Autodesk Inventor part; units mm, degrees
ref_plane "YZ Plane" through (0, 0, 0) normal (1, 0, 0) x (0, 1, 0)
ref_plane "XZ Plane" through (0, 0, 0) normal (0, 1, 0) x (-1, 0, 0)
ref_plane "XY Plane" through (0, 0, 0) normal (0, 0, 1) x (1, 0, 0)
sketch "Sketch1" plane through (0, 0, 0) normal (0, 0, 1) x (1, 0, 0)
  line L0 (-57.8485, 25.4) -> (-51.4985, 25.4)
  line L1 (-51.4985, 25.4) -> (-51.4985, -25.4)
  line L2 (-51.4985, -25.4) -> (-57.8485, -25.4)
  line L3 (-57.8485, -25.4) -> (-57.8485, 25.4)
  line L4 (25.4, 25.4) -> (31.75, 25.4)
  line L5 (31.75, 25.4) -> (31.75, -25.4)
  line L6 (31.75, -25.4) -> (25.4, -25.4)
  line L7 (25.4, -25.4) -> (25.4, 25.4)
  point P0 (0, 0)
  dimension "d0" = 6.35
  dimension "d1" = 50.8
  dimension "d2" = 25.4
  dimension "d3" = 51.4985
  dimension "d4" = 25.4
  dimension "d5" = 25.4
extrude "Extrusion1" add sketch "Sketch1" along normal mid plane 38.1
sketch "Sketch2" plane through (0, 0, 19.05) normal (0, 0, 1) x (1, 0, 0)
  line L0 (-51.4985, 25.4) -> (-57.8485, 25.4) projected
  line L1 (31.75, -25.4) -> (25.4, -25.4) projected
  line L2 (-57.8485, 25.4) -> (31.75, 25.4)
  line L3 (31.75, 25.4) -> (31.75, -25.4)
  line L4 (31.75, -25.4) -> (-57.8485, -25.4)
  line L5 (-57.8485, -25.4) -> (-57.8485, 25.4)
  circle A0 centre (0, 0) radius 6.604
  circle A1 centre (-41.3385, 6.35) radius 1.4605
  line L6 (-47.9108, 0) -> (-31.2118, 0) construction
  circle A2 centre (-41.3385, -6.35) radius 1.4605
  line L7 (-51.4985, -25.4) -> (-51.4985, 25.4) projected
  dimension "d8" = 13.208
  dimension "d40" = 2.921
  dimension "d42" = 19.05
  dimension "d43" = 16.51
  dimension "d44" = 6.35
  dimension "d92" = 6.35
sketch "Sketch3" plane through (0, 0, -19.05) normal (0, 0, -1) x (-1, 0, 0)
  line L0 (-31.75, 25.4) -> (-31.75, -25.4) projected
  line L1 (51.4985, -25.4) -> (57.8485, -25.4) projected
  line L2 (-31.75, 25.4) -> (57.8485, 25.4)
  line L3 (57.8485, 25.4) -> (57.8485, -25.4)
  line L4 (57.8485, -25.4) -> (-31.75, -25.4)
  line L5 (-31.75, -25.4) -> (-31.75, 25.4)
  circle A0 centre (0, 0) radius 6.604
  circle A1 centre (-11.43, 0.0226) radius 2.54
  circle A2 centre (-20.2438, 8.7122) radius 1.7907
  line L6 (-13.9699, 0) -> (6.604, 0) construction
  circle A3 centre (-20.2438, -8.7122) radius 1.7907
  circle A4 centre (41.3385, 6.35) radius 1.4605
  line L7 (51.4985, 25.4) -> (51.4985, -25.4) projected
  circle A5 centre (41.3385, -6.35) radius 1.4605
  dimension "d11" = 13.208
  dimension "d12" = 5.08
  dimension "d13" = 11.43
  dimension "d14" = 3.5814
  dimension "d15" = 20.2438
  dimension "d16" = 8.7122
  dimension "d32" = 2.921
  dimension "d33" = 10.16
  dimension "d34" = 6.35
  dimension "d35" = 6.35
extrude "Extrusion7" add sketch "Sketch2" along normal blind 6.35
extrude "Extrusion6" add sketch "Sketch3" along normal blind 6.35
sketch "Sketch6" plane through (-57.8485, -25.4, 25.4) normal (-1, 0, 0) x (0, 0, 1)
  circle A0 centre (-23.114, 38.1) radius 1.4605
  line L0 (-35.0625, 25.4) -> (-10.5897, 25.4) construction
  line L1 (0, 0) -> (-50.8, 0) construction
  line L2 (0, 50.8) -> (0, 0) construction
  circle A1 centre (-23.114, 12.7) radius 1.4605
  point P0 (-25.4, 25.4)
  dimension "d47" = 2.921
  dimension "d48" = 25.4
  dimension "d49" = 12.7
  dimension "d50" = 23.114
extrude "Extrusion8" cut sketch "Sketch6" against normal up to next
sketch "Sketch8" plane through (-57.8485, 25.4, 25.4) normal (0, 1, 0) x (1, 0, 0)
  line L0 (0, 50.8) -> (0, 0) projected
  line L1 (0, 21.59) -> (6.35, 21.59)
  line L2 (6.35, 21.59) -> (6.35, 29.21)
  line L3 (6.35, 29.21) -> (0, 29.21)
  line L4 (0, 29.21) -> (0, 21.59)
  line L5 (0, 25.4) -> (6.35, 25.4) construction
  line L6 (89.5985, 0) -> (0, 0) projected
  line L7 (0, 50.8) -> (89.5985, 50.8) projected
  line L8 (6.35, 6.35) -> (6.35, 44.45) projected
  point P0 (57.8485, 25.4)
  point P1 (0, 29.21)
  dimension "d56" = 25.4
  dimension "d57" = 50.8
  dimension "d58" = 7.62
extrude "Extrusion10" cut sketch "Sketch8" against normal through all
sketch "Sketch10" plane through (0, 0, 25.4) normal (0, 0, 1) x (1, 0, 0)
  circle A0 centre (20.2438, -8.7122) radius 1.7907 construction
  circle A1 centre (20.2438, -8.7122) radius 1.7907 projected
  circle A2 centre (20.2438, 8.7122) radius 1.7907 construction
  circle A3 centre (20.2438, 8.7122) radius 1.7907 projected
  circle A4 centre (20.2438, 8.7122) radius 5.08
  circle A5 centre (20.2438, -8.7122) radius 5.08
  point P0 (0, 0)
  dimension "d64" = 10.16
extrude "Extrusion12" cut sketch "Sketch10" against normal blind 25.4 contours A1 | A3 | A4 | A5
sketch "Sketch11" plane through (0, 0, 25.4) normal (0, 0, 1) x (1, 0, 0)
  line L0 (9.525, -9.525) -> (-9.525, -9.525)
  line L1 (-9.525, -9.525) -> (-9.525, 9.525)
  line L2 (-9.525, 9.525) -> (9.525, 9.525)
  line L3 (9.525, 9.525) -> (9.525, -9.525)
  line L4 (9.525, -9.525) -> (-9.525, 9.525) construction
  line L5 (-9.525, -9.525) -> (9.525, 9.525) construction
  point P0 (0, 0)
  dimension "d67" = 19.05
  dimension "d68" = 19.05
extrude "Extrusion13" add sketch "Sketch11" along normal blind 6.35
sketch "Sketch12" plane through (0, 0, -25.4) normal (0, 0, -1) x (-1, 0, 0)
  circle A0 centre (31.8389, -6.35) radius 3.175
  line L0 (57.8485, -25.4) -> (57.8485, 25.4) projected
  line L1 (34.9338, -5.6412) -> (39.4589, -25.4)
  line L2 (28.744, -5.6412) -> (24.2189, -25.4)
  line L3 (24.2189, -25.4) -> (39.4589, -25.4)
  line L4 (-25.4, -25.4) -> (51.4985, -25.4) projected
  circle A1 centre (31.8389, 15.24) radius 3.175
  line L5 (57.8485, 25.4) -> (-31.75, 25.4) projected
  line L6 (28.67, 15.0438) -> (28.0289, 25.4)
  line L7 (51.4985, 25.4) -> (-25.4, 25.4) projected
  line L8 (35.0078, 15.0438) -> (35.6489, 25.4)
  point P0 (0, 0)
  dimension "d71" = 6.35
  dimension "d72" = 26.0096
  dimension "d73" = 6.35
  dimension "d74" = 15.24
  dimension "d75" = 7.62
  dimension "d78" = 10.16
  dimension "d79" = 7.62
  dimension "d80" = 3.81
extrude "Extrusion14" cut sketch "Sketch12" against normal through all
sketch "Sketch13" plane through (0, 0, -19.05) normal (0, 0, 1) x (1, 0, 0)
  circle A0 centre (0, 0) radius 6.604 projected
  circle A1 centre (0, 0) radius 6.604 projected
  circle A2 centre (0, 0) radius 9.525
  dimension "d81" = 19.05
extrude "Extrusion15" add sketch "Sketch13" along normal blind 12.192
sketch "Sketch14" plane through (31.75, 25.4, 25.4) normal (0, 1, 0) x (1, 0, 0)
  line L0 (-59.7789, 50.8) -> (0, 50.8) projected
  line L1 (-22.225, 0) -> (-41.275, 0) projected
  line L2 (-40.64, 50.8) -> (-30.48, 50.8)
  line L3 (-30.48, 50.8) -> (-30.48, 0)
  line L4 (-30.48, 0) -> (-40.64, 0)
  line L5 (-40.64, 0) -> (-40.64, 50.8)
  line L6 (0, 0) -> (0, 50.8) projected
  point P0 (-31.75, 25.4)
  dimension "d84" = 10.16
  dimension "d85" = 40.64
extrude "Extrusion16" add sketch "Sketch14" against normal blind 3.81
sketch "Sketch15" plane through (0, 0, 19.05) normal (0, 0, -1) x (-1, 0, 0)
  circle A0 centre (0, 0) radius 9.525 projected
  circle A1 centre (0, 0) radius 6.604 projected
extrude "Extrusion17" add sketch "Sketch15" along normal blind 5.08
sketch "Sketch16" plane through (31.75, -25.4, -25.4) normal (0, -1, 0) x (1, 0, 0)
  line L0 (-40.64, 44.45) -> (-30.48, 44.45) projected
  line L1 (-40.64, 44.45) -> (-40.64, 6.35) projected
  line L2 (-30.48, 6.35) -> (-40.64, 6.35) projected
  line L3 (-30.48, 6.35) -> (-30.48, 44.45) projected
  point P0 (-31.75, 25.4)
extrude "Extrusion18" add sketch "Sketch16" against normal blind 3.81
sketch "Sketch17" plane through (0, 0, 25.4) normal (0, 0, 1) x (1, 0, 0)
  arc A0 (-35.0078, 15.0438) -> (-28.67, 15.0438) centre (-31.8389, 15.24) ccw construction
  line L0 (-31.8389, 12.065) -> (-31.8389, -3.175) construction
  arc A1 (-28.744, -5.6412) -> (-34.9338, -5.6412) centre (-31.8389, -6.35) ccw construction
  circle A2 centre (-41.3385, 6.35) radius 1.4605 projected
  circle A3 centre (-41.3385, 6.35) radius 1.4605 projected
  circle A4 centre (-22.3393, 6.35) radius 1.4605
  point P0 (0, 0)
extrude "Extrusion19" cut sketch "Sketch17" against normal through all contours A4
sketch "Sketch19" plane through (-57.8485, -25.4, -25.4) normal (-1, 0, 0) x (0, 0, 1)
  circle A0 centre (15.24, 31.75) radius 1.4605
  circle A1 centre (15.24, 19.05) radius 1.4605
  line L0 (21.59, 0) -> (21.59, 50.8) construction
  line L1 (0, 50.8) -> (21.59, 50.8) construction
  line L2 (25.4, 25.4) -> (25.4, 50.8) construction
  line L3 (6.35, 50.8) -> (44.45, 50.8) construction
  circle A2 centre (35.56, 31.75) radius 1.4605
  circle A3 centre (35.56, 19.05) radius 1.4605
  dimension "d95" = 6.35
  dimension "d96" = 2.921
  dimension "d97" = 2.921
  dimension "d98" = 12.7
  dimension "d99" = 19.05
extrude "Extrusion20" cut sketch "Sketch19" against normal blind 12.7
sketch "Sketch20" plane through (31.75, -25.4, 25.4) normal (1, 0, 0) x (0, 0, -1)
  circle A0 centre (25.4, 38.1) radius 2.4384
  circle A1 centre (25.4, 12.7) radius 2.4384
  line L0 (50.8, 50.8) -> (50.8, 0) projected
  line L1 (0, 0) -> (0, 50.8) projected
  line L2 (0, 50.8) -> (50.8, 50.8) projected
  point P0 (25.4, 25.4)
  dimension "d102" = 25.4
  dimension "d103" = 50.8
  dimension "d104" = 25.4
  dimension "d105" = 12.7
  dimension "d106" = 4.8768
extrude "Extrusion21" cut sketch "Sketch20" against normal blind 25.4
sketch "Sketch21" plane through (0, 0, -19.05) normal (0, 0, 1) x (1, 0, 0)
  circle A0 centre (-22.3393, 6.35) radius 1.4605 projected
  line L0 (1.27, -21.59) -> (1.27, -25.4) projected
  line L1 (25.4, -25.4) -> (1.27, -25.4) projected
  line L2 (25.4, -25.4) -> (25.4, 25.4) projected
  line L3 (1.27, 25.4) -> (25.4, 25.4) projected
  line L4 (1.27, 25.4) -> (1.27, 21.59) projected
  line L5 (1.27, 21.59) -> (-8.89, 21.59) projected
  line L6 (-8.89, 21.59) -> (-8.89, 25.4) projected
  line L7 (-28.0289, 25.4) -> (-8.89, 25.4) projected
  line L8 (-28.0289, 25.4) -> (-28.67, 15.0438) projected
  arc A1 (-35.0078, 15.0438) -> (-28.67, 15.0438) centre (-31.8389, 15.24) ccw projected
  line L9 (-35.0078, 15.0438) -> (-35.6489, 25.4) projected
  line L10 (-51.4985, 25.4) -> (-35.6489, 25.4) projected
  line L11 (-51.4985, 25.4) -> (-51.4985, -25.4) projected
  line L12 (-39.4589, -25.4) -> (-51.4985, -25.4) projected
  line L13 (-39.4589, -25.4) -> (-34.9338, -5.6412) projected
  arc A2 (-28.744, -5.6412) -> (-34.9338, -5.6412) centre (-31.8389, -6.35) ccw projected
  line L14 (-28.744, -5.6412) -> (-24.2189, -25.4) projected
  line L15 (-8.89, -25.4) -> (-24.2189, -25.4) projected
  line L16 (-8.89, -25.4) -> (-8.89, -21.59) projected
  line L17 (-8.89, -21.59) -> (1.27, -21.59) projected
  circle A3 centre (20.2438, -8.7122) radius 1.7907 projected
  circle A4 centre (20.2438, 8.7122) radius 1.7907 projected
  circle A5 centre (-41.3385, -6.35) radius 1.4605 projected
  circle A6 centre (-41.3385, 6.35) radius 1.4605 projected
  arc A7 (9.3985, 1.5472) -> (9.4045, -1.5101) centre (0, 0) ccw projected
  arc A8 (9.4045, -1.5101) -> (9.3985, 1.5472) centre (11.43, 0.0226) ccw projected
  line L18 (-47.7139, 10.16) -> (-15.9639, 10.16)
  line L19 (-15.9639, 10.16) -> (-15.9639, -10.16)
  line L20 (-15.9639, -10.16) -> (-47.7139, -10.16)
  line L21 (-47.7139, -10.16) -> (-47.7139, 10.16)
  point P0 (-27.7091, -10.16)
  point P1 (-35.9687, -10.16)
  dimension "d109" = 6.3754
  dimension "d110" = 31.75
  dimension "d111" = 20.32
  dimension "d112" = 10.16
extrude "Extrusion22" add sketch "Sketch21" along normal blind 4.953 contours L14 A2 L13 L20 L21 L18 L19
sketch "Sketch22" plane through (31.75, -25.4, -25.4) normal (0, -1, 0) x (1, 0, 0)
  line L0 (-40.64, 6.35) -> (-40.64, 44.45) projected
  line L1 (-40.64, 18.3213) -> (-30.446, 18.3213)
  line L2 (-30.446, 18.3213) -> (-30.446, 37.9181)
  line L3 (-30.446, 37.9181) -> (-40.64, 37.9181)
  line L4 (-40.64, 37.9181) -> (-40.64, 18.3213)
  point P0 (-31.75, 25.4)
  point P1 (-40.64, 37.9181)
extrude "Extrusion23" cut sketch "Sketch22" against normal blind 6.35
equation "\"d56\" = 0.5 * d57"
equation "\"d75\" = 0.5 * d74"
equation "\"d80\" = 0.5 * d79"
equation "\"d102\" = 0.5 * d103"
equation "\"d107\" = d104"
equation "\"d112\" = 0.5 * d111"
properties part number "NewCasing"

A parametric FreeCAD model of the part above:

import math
import FreeCAD as App
import Part
import Sketcher
Q = App.Units.Quantity

doc = App.newDocument("Part")
body = doc.addObject("PartDesign::Body", "Body")
body.AllowCompound = True

# Sketch on XY plane
sketch1 = body.newObject("Sketcher::SketchObject", "Sketch")
sketch1.AttachmentSupport = (doc.getObject("XY_Plane"), [""])
sketch1.MapMode = "FlatFace"
sketch1.addGeometry(Part.LineSegment(App.Vector(-51, 25, 0), App.Vector(-58, 25, 0)), False)
sketch1.addGeometry(Part.LineSegment(App.Vector(-58, 25, 0), App.Vector(-58, -25, 0)), False)
sketch1.addGeometry(Part.LineSegment(App.Vector(-58, -25, 0), App.Vector(-51, -25, 0)), False)
sketch1.addGeometry(Part.LineSegment(App.Vector(-51, -25, 0), App.Vector(-51, 25, 0)), False)
sketch1.addGeometry(Part.LineSegment(App.Vector(32, 25, 0), App.Vector(25, 25, 0)), False)
sketch1.addGeometry(Part.LineSegment(App.Vector(25, 25, 0), App.Vector(25, -25, 0)), False)
sketch1.addGeometry(Part.LineSegment(App.Vector(25, -25, 0), App.Vector(32, -25, 0)), False)
sketch1.addGeometry(Part.LineSegment(App.Vector(32, -25, 0), App.Vector(32, 25, 0)), False)
sketch1.addConstraint(Sketcher.Constraint("Coincident", 0, 2, 1, 1))
sketch1.addConstraint(Sketcher.Constraint("Coincident", 1, 2, 2, 1))
sketch1.addConstraint(Sketcher.Constraint("Coincident", 2, 2, 3, 1))
sketch1.addConstraint(Sketcher.Constraint("Coincident", 3, 2, 0, 1))
sketch1.addConstraint(Sketcher.Constraint("Coincident", 4, 2, 5, 1))
sketch1.addConstraint(Sketcher.Constraint("Coincident", 5, 2, 6, 1))
sketch1.addConstraint(Sketcher.Constraint("Coincident", 6, 2, 7, 1))
sketch1.addConstraint(Sketcher.Constraint("Coincident", 7, 2, 4, 1))
sketch1.addConstraint(Sketcher.Constraint("Horizontal", 0))
sketch1.addConstraint(Sketcher.Constraint("Vertical", 1))
sketch1.addConstraint(Sketcher.Constraint("Horizontal", 2))
sketch1.addConstraint(Sketcher.Constraint("Vertical", 3))
sketch1.addConstraint(Sketcher.Constraint("Horizontal", 4))
sketch1.addConstraint(Sketcher.Constraint("Vertical", 5))
sketch1.addConstraint(Sketcher.Constraint("Horizontal", 6))
sketch1.addConstraint(Sketcher.Constraint("Vertical", 7))
sketch1.addConstraint(Sketcher.Constraint("Horizontal", 3, 2, 4, 2))
sketch1.addConstraint(Sketcher.Constraint("Horizontal", 2, 2, 5, 2))
sketch1.addConstraint(Sketcher.Constraint("Equal", 2, 4))
sketch1.addConstraint(Sketcher.Constraint("DistanceY", 1, 2, 1, 1, Q("2 in")))
sketch1.addConstraint(Sketcher.Constraint("DistanceY", -1, 1, 0, 2, Q("1 in")))
sketch1.addConstraint(Sketcher.Constraint("DistanceX", -1, 1, 4, 2, Q("1 in")))
sketch1.addConstraint(Sketcher.Constraint("DistanceX", 0, 2, 0, 1, Q("0.25 in")))
sketch1.addConstraint(Sketcher.Constraint("DistanceX", 2, 2, -1, 1, Q("2.0275 in")))
pad1 = body.newObject("PartDesign::Pad", "Pad")
pad1.Profile = sketch1
pad1.Length = Q("1.5 in")
pad1.Midplane = True

# Sketch on XY plane
sketch2 = body.newObject("Sketcher::SketchObject", "Sketch001")
sketch2.AttachmentSupport = (doc.getObject("XY_Plane"), [""])
sketch2.MapMode = "FlatFace"
sketch2.AttachmentOffset = App.Placement(App.Vector(0, 0, 0.75 * 25.4), App.Rotation())
sketch2.addGeometry(Part.LineSegment(App.Vector(-57.8, -25.4, 0), App.Vector(31.8, -25.4, 0)), False)
sketch2.addGeometry(Part.LineSegment(App.Vector(31.8, -25.4, 0), App.Vector(31.8, 25.4, 0)), False)
sketch2.addGeometry(Part.LineSegment(App.Vector(31.8, 25.4, 0), App.Vector(-57.8, 25.4, 0)), False)
sketch2.addGeometry(Part.LineSegment(App.Vector(-57.8, 25.4, 0), App.Vector(-57.8, -25.4, 0)), False)
sketch2.addGeometry(Part.Circle(App.Vector(-41.3, 6.3, 0), App.Vector(0, 0, 1), 1.5), False)
sketch2.addGeometry(Part.Circle(App.Vector(-41.3, -6.3, 0), App.Vector(0, 0, 1), 1.5), False)
sketch2.addGeometry(Part.Circle(App.Vector(0, 0, 0), App.Vector(0, 0, 1), 6.6), False)
sketch2.addConstraint(Sketcher.Constraint("Coincident", 0, 2, 1, 1))
sketch2.addConstraint(Sketcher.Constraint("Coincident", 1, 2, 2, 1))
sketch2.addConstraint(Sketcher.Constraint("Coincident", 2, 2, 3, 1))
sketch2.addConstraint(Sketcher.Constraint("Coincident", 3, 2, 0, 1))
sketch2.addConstraint(Sketcher.Constraint("Horizontal", 0))
sketch2.addConstraint(Sketcher.Constraint("Vertical", 1))
sketch2.addConstraint(Sketcher.Constraint("Horizontal", 2))
sketch2.addConstraint(Sketcher.Constraint("Vertical", 3))
sketch2.addConstraint(Sketcher.Constraint("Coincident", 6, 3, -1, 1))
sketch2.addConstraint(Sketcher.Constraint("Equal", 4, 5))
sketch2.addConstraint(Sketcher.Constraint("Symmetric", 4, 3, 5, 3, -1))
sketch2.addConstraint(Sketcher.Constraint("Diameter", 6, Q("0.52 in")))
sketch2.addConstraint(Sketcher.Constraint("Diameter", 4, Q("0.115 in")))
sketch2.addConstraint(Sketcher.Constraint("DistanceY", 1, 1, 1, 2, Q("2 in")))
sketch2.addConstraint(Sketcher.Constraint("DistanceY", -1, 1, 4, 3, Q("0.25 in")))
sketch2.addConstraint(Sketcher.Constraint("DistanceY", 0, 2, 5, 3, Q("0.75 in")))
sketch2.addConstraint(Sketcher.Constraint("DistanceX", 2, 2, 4, 3, Q("0.65 in")))
sketch2.addConstraint(Sketcher.Constraint("DistanceX", -1, 1, 0, 2, Q("1.25 in")))
sketch2.addConstraint(Sketcher.Constraint("DistanceX", 0, 1, 0, 2, Q("3.5275 in")))
pad2 = body.newObject("PartDesign::Pad", "Pad001")
pad2.Profile = sketch2
pad2.Length = Q("0.25 in")

# Sketch on XY plane
sketch3 = body.newObject("Sketcher::SketchObject", "Sketch002")
sketch3.AttachmentSupport = (doc.getObject("XY_Plane"), [""])
sketch3.MapMode = "FlatFace"
sketch3.AttachmentOffset = App.Placement(App.Vector(0, 0, -0.75 * 25.4), App.Rotation())
sketch3.addGeometry(Part.LineSegment(App.Vector(31.8, 25.4, 0), App.Vector(31.8, -25.4, 0)), False)
sketch3.addGeometry(Part.LineSegment(App.Vector(31.8, -25.4, 0), App.Vector(-57.8, -25.4, 0)), False)
sketch3.addGeometry(Part.LineSegment(App.Vector(-57.8, -25.4, 0), App.Vector(-57.8, 25.4, 0)), False)
sketch3.addGeometry(Part.LineSegment(App.Vector(-57.8, 25.4, 0), App.Vector(31.8, 25.4, 0)), False)
sketch3.addGeometry(Part.Circle(App.Vector(20.2, -8.7, 0), App.Vector(0, 0, 1), 1.8), False)
sketch3.addGeometry(Part.Circle(App.Vector(0, 0, 0), App.Vector(0, 0, 1), 6.6), False)
sketch3.addGeometry(Part.Circle(App.Vector(-41.3, -6.3, 0), App.Vector(0, 0, 1), 1.5), False)
sketch3.addGeometry(Part.Circle(App.Vector(11.4, 0, 0), App.Vector(0, 0, 1), 2.5), False)
sketch3.addGeometry(Part.Circle(App.Vector(20.2, 8.7, 0), App.Vector(0, 0, 1), 1.8), False)
sketch3.addGeometry(Part.Circle(App.Vector(-41.3, 6.3, 0), App.Vector(0, 0, 1), 1.5), False)
sketch3.addConstraint(Sketcher.Constraint("Coincident", 0, 2, 1, 1))
sketch3.addConstraint(Sketcher.Constraint("Coincident", 1, 2, 2, 1))
sketch3.addConstraint(Sketcher.Constraint("Coincident", 2, 2, 3, 1))
sketch3.addConstraint(Sketcher.Constraint("Coincident", 3, 2, 0, 1))
sketch3.addConstraint(Sketcher.Constraint("Vertical", 0))
sketch3.addConstraint(Sketcher.Constraint("Horizontal", 1))
sketch3.addConstraint(Sketcher.Constraint("Vertical", 2))
sketch3.addConstraint(Sketcher.Constraint("Horizontal", 3))
sketch3.addConstraint(Sketcher.Constraint("Coincident", 5, 3, -1, 1))
sketch3.addConstraint(Sketcher.Constraint("Equal", 4, 8))
sketch3.addConstraint(Sketcher.Constraint("Equal", 6, 9))
sketch3.addConstraint(Sketcher.Constraint("Symmetric", 4, 3, 8, 3, -1))
sketch3.addConstraint(Sketcher.Constraint("Symmetric", 6, 3, 9, 3, -1))
sketch3.addConstraint(Sketcher.Constraint("Diameter", 7, Q("0.2 in")))
sketch3.addConstraint(Sketcher.Constraint("Diameter", 5, Q("0.52 in")))
sketch3.addConstraint(Sketcher.Constraint("Diameter", 4, Q("0.141 in")))
sketch3.addConstraint(Sketcher.Constraint("Diameter", 6, Q("0.115 in")))
sketch3.addConstraint(Sketcher.Constraint("DistanceY", 0, 2, 0, 1, Q("2 in")))
sketch3.addConstraint(Sketcher.Constraint("DistanceY", 6, 3, -1, 1, Q("0.25 in")))
sketch3.addConstraint(Sketcher.Constraint("DistanceX", -1, 1, 7, 3, Q("0.45 in")))
sketch3.addConstraint(Sketcher.Constraint("DistanceX", -1, 1, 4, 3, Q("0.797 in")))
sketch3.addConstraint(Sketcher.Constraint("DistanceY", 4, 3, -1, 1, Q("0.343 in")))
sketch3.addConstraint(Sketcher.Constraint("DistanceY", 0, 2, -1, 1, Q("1 in")))
sketch3.addConstraint(Sketcher.Constraint("DistanceX", 7, 3, 0, 2, Q("0.8 in")))
sketch3.addConstraint(Sketcher.Constraint("DistanceX", 1, 2, 6, 3, Q("0.65 in")))
sketch3.addConstraint(Sketcher.Constraint("DistanceX", 1, 2, 1, 1, Q("3.5275 in")))
sketch3.addConstraint(Sketcher.Constraint("DistanceY", -1, 1, 7, 3, Q("0.0009 in")))
pad3 = body.newObject("PartDesign::Pad", "Pad002")
pad3.Profile = sketch3
pad3.Length = Q("0.25 in")
pad3.Reversed = True

# Sketch on YZ plane
sketch4 = body.newObject("Sketcher::SketchObject", "Sketch003")
sketch4.AttachmentSupport = (doc.getObject("YZ_Plane"), [""])
sketch4.MapMode = "FlatFace"
sketch4.AttachmentOffset = App.Placement(App.Vector(0, 0, -2.2775 * 25.4), App.Rotation())
sketch4.addGeometry(Part.Circle(App.Vector(12.7, 2.3, 0), App.Vector(0, 0, 1), 1.5), False)
sketch4.addGeometry(Part.Circle(App.Vector(-12.7, 2.3, 0), App.Vector(0, 0, 1), 1.5), False)
sketch4.addConstraint(Sketcher.Constraint("Equal", 0, 1))
sketch4.addConstraint(Sketcher.Constraint("Symmetric", 0, 3, 1, 3, -2))
sketch4.addConstraint(Sketcher.Constraint("Diameter", 0, Q("0.115 in")))
sketch4.addConstraint(Sketcher.Constraint("DistanceX", 1, 3, 0, 3, Q("1 in")))
sketch4.addConstraint(Sketcher.Constraint("DistanceY", -1, 1, 0, 3, Q("0.09 in")))
pocket1 = body.newObject("PartDesign::Pocket", "Pocket")
pocket1.Profile = sketch4
pocket1.Type = "UpToFirst"
pocket1.Reversed = True

# Sketch on XZ plane
sketch5 = body.newObject("Sketcher::SketchObject", "Sketch004")
sketch5.AttachmentSupport = (doc.getObject("XZ_Plane"), [""])
sketch5.MapMode = "FlatFace"
sketch5.AttachmentOffset = App.Placement(App.Vector(0, 0, -1 * 25.4), App.Rotation())
sketch5.addGeometry(Part.LineSegment(App.Vector(-51, -4, 0), App.Vector(-58, -4, 0)), False)
sketch5.addGeometry(Part.LineSegment(App.Vector(-58, -4, 0), App.Vector(-58, 4, 0)), False)
sketch5.addGeometry(Part.LineSegment(App.Vector(-58, 4, 0), App.Vector(-51, 4, 0)), False)
sketch5.addGeometry(Part.LineSegment(App.Vector(-51, 4, 0), App.Vector(-51, -4, 0)), False)
sketch5.addConstraint(Sketcher.Constraint("Coincident", 0, 2, 1, 1))
sketch5.addConstraint(Sketcher.Constraint("Coincident", 1, 2, 2, 1))
sketch5.addConstraint(Sketcher.Constraint("Coincident", 2, 2, 3, 1))
sketch5.addConstraint(Sketcher.Constraint("Coincident", 3, 2, 0, 1))
sketch5.addConstraint(Sketcher.Constraint("Horizontal", 0))
sketch5.addConstraint(Sketcher.Constraint("Vertical", 1))
sketch5.addConstraint(Sketcher.Constraint("Horizontal", 2))
sketch5.addConstraint(Sketcher.Constraint("Vertical", 3))
sketch5.addConstraint(Sketcher.Constraint("DistanceY", 1, 1, 1, 2, Q("0.3 in")))
sketch5.addConstraint(Sketcher.Constraint("DistanceX", 0, 2, 0, 1, Q("0.25 in")))
sketch5.addConstraint(Sketcher.Constraint("DistanceY", 0, 2, -1, 1, Q("0.15 in")))
sketch5.addConstraint(Sketcher.Constraint("DistanceX", 0, 2, -1, 1, Q("2.2775 in")))
pocket2 = body.newObject("PartDesign::Pocket", "Pocket001")
pocket2.Profile = sketch5
pocket2.Type = "ThroughAll"
pocket2.Reversed = True

# Sketch on XY plane
sketch6 = body.newObject("Sketcher::SketchObject", "Sketch005")
sketch6.AttachmentSupport = (doc.getObject("XY_Plane"), [""])
sketch6.MapMode = "FlatFace"
sketch6.AttachmentOffset = App.Placement(App.Vector(0, 0, 1 * 25.4), App.Rotation())
sketch6.addGeometry(Part.Circle(App.Vector(20, -9, 0), App.Vector(0, 0, 1), 5), False)
sketch6.addGeometry(Part.Circle(App.Vector(20, 9, 0), App.Vector(0, 0, 1), 5), False)
sketch6.addConstraint(Sketcher.Constraint("Equal", 0, 1))
sketch6.addConstraint(Sketcher.Constraint("Symmetric", 0, 3, 1, 3, -1))
sketch6.addConstraint(Sketcher.Constraint("Diameter", 0, Q("0.4 in")))
sketch6.addConstraint(Sketcher.Constraint("DistanceX", -1, 1, 0, 3, Q("0.797 in")))
sketch6.addConstraint(Sketcher.Constraint("DistanceY", 0, 3, -1, 1, Q("0.343 in")))
pocket3 = body.newObject("PartDesign::Pocket", "Pocket002")
pocket3.Profile = sketch6
pocket3.Length = Q("1 in")

# Sketch on XY plane
sketch7 = body.newObject("Sketcher::SketchObject", "Sketch006")
sketch7.AttachmentSupport = (doc.getObject("XY_Plane"), [""])
sketch7.MapMode = "FlatFace"
sketch7.AttachmentOffset = App.Placement(App.Vector(0, 0, 1 * 25.4), App.Rotation())
sketch7.addGeometry(Part.LineSegment(App.Vector(-10, -10, 0), App.Vector(10, -10, 0)), False)
sketch7.addGeometry(Part.LineSegment(App.Vector(10, -10, 0), App.Vector(10, 10, 0)), False)
sketch7.addGeometry(Part.LineSegment(App.Vector(10, 10, 0), App.Vector(-10, 10, 0)), False)
sketch7.addGeometry(Part.LineSegment(App.Vector(-10, 10, 0), App.Vector(-10, -10, 0)), False)
sketch7.addConstraint(Sketcher.Constraint("Coincident", 0, 2, 1, 1))
sketch7.addConstraint(Sketcher.Constraint("Coincident", 1, 2, 2, 1))
sketch7.addConstraint(Sketcher.Constraint("Coincident", 2, 2, 3, 1))
sketch7.addConstraint(Sketcher.Constraint("Coincident", 3, 2, 0, 1))
sketch7.addConstraint(Sketcher.Constraint("Horizontal", 0))
sketch7.addConstraint(Sketcher.Constraint("Vertical", 1))
sketch7.addConstraint(Sketcher.Constraint("Horizontal", 2))
sketch7.addConstraint(Sketcher.Constraint("Vertical", 3))
sketch7.addConstraint(Sketcher.Constraint("Symmetric", 0, 2, 2, 2, -1, 1))
sketch7.addConstraint(Sketcher.Constraint("Equal", 2, 1))
sketch7.addConstraint(Sketcher.Constraint("DistanceX", 0, 1, 0, 2, Q("0.75 in")))
pad4 = body.newObject("PartDesign::Pad", "Pad003")
pad4.Profile = sketch7
pad4.Length = Q("0.25 in")

# Sketch on XY plane
sketch8 = body.newObject("Sketcher::SketchObject", "Sketch007")
sketch8.AttachmentSupport = (doc.getObject("XY_Plane"), [""])
sketch8.MapMode = "FlatFace"
sketch8.AttachmentOffset = App.Placement(App.Vector(0, 0, -1 * 25.4), App.Rotation())
sketch8.addGeometry(Part.ArcOfCircle(Part.Circle(App.Vector(-31.8, -6.3, 0), App.Vector(0, 0, 1), 3.2), math.radians(13), math.radians(167)), False)
sketch8.addGeometry(Part.LineSegment(App.Vector(-28.7, -5.6, 0), App.Vector(-24.2, -25.4, 0)), False)
sketch8.addGeometry(Part.LineSegment(App.Vector(-24.2, -25.4, 0), App.Vector(-39.5, -25.4, 0)), False)
sketch8.addGeometry(Part.LineSegment(App.Vector(-39.5, -25.4, 0), App.Vector(-34.9, -5.6, 0)), False)
sketch8.addGeometry(Part.ArcOfCircle(Part.Circle(App.Vector(-31.8, 15.2, 0), App.Vector(0, 0, 1), 3.2), math.radians(-176), math.radians(-4)), False)
sketch8.addGeometry(Part.LineSegment(App.Vector(-35, 15, 0), App.Vector(-35.6, 25.4, 0)), False)
sketch8.addGeometry(Part.LineSegment(App.Vector(-35.6, 25.4, 0), App.Vector(-28, 25.4, 0)), False)
sketch8.addGeometry(Part.LineSegment(App.Vector(-28, 25.4, 0), App.Vector(-28.7, 15, 0)), False)
sketch8.addConstraint(Sketcher.Constraint("Tangent", 0, 1, 1, 1))
sketch8.addConstraint(Sketcher.Constraint("Coincident", 1, 2, 2, 1))
sketch8.addConstraint(Sketcher.Constraint("Coincident", 2, 2, 3, 1))
sketch8.addConstraint(Sketcher.Constraint("Tangent", 3, 2, 0, 2))
sketch8.addConstraint(Sketcher.Constraint("Tangent", 4, 1, 5, 1))
sketch8.addConstraint(Sketcher.Constraint("Coincident", 5, 2, 6, 1))
sketch8.addConstraint(Sketcher.Constraint("Coincident", 6, 2, 7, 1))
sketch8.addConstraint(Sketcher.Constraint("Tangent", 7, 2, 4, 2))
sketch8.addConstraint(Sketcher.Constraint("Horizontal", 2))
sketch8.addConstraint(Sketcher.Constraint("Horizontal", 6))
sketch8.addConstraint(Sketcher.Constraint("Equal", 0, 4))
sketch8.addConstraint(Sketcher.Constraint("Horizontal", 0, 1, 3, 2))
sketch8.addConstraint(Sketcher.Constraint("Horizontal", 4, 1, 7, 2))
sketch8.addConstraint(Sketcher.Constraint("Vertical", 0, 3, 4, 3))
sketch8.addConstraint(Sketcher.Constraint("DistanceX", 2, 2, 2, 1, Q("0.6 in")))
sketch8.addConstraint(Sketcher.Constraint("DistanceX", 6, 1, 6, 2, Q("0.3 in")))
sketch8.addConstraint(Sketcher.Constraint("Radius", 0, Q("0.125 in")))
sketch8.addConstraint(Sketcher.Constraint("DistanceY", -1, 1, 4, 3, Q("0.6 in")))
sketch8.addConstraint(Sketcher.Constraint("DistanceY", 4, 3, 5, 2, Q("0.4 in")))
sketch8.addConstraint(Sketcher.Constraint("DistanceY", 0, 3, -1, 1, Q("0.25 in")))
sketch8.addConstraint(Sketcher.Constraint("DistanceY", 1, 2, -1, 1, Q("1 in")))
sketch8.addConstraint(Sketcher.Constraint("DistanceX", 0, 3, -1, 1, Q("1.2535 in")))
pocket4 = body.newObject("PartDesign::Pocket", "Pocket003")
pocket4.Profile = sketch8
pocket4.Type = "ThroughAll"
pocket4.Reversed = True

# Sketch on XY plane
sketch9 = body.newObject("Sketcher::SketchObject", "Sketch008")
sketch9.AttachmentSupport = (doc.getObject("XY_Plane"), [""])
sketch9.MapMode = "FlatFace"
sketch9.AttachmentOffset = App.Placement(App.Vector(0, 0, -0.75 * 25.4), App.Rotation())
sketch9.addGeometry(Part.Circle(App.Vector(0, 0, 0), App.Vector(0, 0, 1), 10), False)
sketch9.addGeometry(Part.Circle(App.Vector(0, 0, 0), App.Vector(0, 0, 1), 7), False)
sketch9.addConstraint(Sketcher.Constraint("Coincident", 0, 3, -1, 1))
sketch9.addConstraint(Sketcher.Constraint("Coincident", 1, 3, -1, 1))
sketch9.addConstraint(Sketcher.Constraint("Diameter", 0, Q("0.75 in")))
sketch9.addConstraint(Sketcher.Constraint("Diameter", 1, Q("0.52 in")))
pad5 = body.newObject("PartDesign::Pad", "Pad004")
pad5.Profile = sketch9
pad5.Length = Q("0.48 in")

# Sketch on XZ plane
sketch10 = body.newObject("Sketcher::SketchObject", "Sketch009")
sketch10.AttachmentSupport = (doc.getObject("XZ_Plane"), [""])
sketch10.MapMode = "FlatFace"
sketch10.AttachmentOffset = App.Placement(App.Vector(0, 0, -1 * 25.4), App.Rotation())
sketch10.addGeometry(Part.LineSegment(App.Vector(1, -25, 0), App.Vector(-9, -25, 0)), False)
sketch10.addGeometry(Part.LineSegment(App.Vector(-9, -25, 0), App.Vector(-9, 25, 0)), False)
sketch10.addGeometry(Part.LineSegment(App.Vector(-9, 25, 0), App.Vector(1, 25, 0)), False)
sketch10.addGeometry(Part.LineSegment(App.Vector(1, 25, 0), App.Vector(1, -25, 0)), False)
sketch10.addConstraint(Sketcher.Constraint("Coincident", 0, 2, 1, 1))
sketch10.addConstraint(Sketcher.Constraint("Coincident", 1, 2, 2, 1))
sketch10.addConstraint(Sketcher.Constraint("Coincident", 2, 2, 3, 1))
sketch10.addConstraint(Sketcher.Constraint("Coincident", 3, 2, 0, 1))
sketch10.addConstraint(Sketcher.Constraint("Horizontal", 0))
sketch10.addConstraint(Sketcher.Constraint("Vertical", 1))
sketch10.addConstraint(Sketcher.Constraint("Horizontal", 2))
sketch10.addConstraint(Sketcher.Constraint("Vertical", 3))
sketch10.addConstraint(Sketcher.Constraint("DistanceX", 0, 2, 0, 1, Q("0.4 in")))
sketch10.addConstraint(Sketcher.Constraint("DistanceY", 1, 1, 1, 2, Q("2 in")))
sketch10.addConstraint(Sketcher.Constraint("DistanceY", 0, 2, -1, 1, Q("1 in")))
sketch10.addConstraint(Sketcher.Constraint("DistanceX", 0, 2, -1, 1, Q("0.35 in")))
pad6 = body.newObject("PartDesign::Pad", "Pad005")
pad6.Profile = sketch10
pad6.Length = Q("0.15 in")

# Sketch on XY plane
sketch11 = body.newObject("Sketcher::SketchObject", "Sketch010")
sketch11.AttachmentSupport = (doc.getObject("XY_Plane"), [""])
sketch11.MapMode = "FlatFace"
sketch11.AttachmentOffset = App.Placement(App.Vector(0, 0, 0.75 * 25.4), App.Rotation())
sketch11.addGeometry(Part.Circle(App.Vector(0, 0, 0), App.Vector(0, 0, 1), 10), False)
sketch11.addGeometry(Part.Circle(App.Vector(0, 0, 0), App.Vector(0, 0, 1), 7), False)
sketch11.addConstraint(Sketcher.Constraint("Coincident", 0, 3, -1, 1))
sketch11.addConstraint(Sketcher.Constraint("Coincident", 1, 3, -1, 1))
sketch11.addConstraint(Sketcher.Constraint("Diameter", 0, Q("0.75 in")))
sketch11.addConstraint(Sketcher.Constraint("Diameter", 1, Q("0.52 in")))
pad7 = body.newObject("PartDesign::Pad", "Pad006")
pad7.Profile = sketch11
pad7.Length = Q("0.2 in")
pad7.Reversed = True

# Sketch on XZ plane
sketch12 = body.newObject("Sketcher::SketchObject", "Sketch011")
sketch12.AttachmentSupport = (doc.getObject("XZ_Plane"), [""])
sketch12.MapMode = "FlatFace"
sketch12.AttachmentOffset = App.Placement(App.Vector(0, 0, 1 * 25.4), App.Rotation())
sketch12.addGeometry(Part.LineSegment(App.Vector(1, 19, 0), App.Vector(-9, 19, 0)), False)
sketch12.addGeometry(Part.LineSegment(App.Vector(-9, 19, 0), App.Vector(-9, -19, 0)), False)
sketch12.addGeometry(Part.LineSegment(App.Vector(-9, -19, 0), App.Vector(1, -19, 0)), False)
sketch12.addGeometry(Part.LineSegment(App.Vector(1, -19, 0), App.Vector(1, 19, 0)), False)
sketch12.addConstraint(Sketcher.Constraint("Coincident", 0, 2, 1, 1))
sketch12.addConstraint(Sketcher.Constraint("Coincident", 1, 2, 2, 1))
sketch12.addConstraint(Sketcher.Constraint("Coincident", 2, 2, 3, 1))
sketch12.addConstraint(Sketcher.Constraint("Coincident", 3, 2, 0, 1))
sketch12.addConstraint(Sketcher.Constraint("Horizontal", 0))
sketch12.addConstraint(Sketcher.Constraint("Vertical", 1))
sketch12.addConstraint(Sketcher.Constraint("Horizontal", 2))
sketch12.addConstraint(Sketcher.Constraint("Vertical", 3))
sketch12.addConstraint(Sketcher.Constraint("DistanceX", 0, 2, 0, 1, Q("0.4 in")))
sketch12.addConstraint(Sketcher.Constraint("DistanceY", 1, 2, 1, 1, Q("1.5 in")))
sketch12.addConstraint(Sketcher.Constraint("DistanceX", 0, 2, -1, 1, Q("0.35 in")))
sketch12.addConstraint(Sketcher.Constraint("DistanceY", -1, 1, 0, 2, Q("0.75 in")))
pad8 = body.newObject("PartDesign::Pad", "Pad007")
pad8.Profile = sketch12
pad8.Length = Q("0.15 in")
pad8.Reversed = True

# Sketch on XY plane
sketch13 = body.newObject("Sketcher::SketchObject", "Sketch012")
sketch13.AttachmentSupport = (doc.getObject("XY_Plane"), [""])
sketch13.MapMode = "FlatFace"
sketch13.AttachmentOffset = App.Placement(App.Vector(0, 0, 1 * 25.4), App.Rotation())
sketch13.addGeometry(Part.Circle(App.Vector(-22.3, 6.3, 0), App.Vector(0, 0, 1), 1.5), False)
sketch13.addConstraint(Sketcher.Constraint("Diameter", 0, Q("0.115 in")))
sketch13.addConstraint(Sketcher.Constraint("DistanceY", -1, 1, 0, 3, Q("0.25 in")))
sketch13.addConstraint(Sketcher.Constraint("DistanceX", 0, 3, -1, 1, Q("0.8795 in")))
pocket5 = body.newObject("PartDesign::Pocket", "Pocket004")
pocket5.Profile = sketch13
pocket5.Type = "ThroughAll"

# Sketch on YZ plane
sketch14 = body.newObject("Sketcher::SketchObject", "Sketch013")
sketch14.AttachmentSupport = (doc.getObject("YZ_Plane"), [""])
sketch14.MapMode = "FlatFace"
sketch14.AttachmentOffset = App.Placement(App.Vector(0, 0, -2.2775 * 25.4), App.Rotation())
sketch14.addGeometry(Part.Circle(App.Vector(6.3, -10.2, 0), App.Vector(0, 0, 1), 1.5), False)
sketch14.addGeometry(Part.Circle(App.Vector(-6.3, -10.2, 0), App.Vector(0, 0, 1), 1.5), False)
sketch14.addGeometry(Part.Circle(App.Vector(6.3, 10.2, 0), App.Vector(0, 0, 1), 1.5), False)
sketch14.addGeometry(Part.Circle(App.Vector(-6.3, 10.2, 0), App.Vector(0, 0, 1), 1.5), False)
sketch14.addConstraint(Sketcher.Constraint("Equal", 0, 1))
sketch14.addConstraint(Sketcher.Constraint("Equal", 1, 2))
sketch14.addConstraint(Sketcher.Constraint("Equal", 2, 3))
sketch14.addConstraint(Sketcher.Constraint("Symmetric", 1, 3, 2, 3, -1, 1))
sketch14.addConstraint(Sketcher.Constraint("Symmetric", 0, 3, 3, 3, -1, 1))
sketch14.addConstraint(Sketcher.Constraint("Symmetric", 0, 3, 1, 3, -2))
sketch14.addConstraint(Sketcher.Constraint("Diameter", 0, Q("0.115 in")))
sketch14.addConstraint(Sketcher.Constraint("DistanceX", 1, 3, 0, 3, Q("0.5 in")))
sketch14.addConstraint(Sketcher.Constraint("DistanceY", 0, 3, -1, 1, Q("0.4 in")))
pocket6 = body.newObject("PartDesign::Pocket", "Pocket005")
pocket6.Profile = sketch14
pocket6.Length = Q("0.5 in")
pocket6.Reversed = True

# Sketch on YZ plane
sketch15 = body.newObject("Sketcher::SketchObject", "Sketch014")
sketch15.AttachmentSupport = (doc.getObject("YZ_Plane"), [""])
sketch15.MapMode = "FlatFace"
sketch15.AttachmentOffset = App.Placement(App.Vector(0, 0, 1.25 * 25.4), App.Rotation())
sketch15.addGeometry(Part.Circle(App.Vector(12.7, 0, 0), App.Vector(0, 0, 1), 2.4), False)
sketch15.addGeometry(Part.Circle(App.Vector(-12.7, 0, 0), App.Vector(0, 0, 1), 2.4), False)
sketch15.addConstraint(Sketcher.Constraint("Equal", 0, 1))
sketch15.addConstraint(Sketcher.Constraint("Symmetric", 0, 3, 1, 3, -1, 1))
sketch15.addConstraint(Sketcher.Constraint("PointOnObject", 0, 3, -1))
sketch15.addConstraint(Sketcher.Constraint("Diameter", 0, Q("0.192 in")))
sketch15.addConstraint(Sketcher.Constraint("DistanceX", 1, 3, 0, 3, Q("1 in")))
pocket7 = body.newObject("PartDesign::Pocket", "Pocket006")
pocket7.Profile = sketch15
pocket7.Length = Q("1 in")

# Sketch on XY plane
sketch16 = body.newObject("Sketcher::SketchObject", "Sketch015")
sketch16.AttachmentSupport = (doc.getObject("XY_Plane"), [""])
sketch16.MapMode = "FlatFace"
sketch16.AttachmentOffset = App.Placement(App.Vector(0, 0, -0.75 * 25.4), App.Rotation())
sketch16.addGeometry(Part.LineSegment(App.Vector(-28.7, -5.6, 0), App.Vector(-27.7, -10.2, 0)), False)
sketch16.addGeometry(Part.LineSegment(App.Vector(-27.7, -10.2, 0), App.Vector(-16, -10.2, 0)), False)
sketch16.addGeometry(Part.LineSegment(App.Vector(-16, -10.2, 0), App.Vector(-16, 10.2, 0)), False)
sketch16.addGeometry(Part.LineSegment(App.Vector(-16, 10.2, 0), App.Vector(-47.7, 10.2, 0)), False)
sketch16.addGeometry(Part.LineSegment(App.Vector(-47.7, 10.2, 0), App.Vector(-47.7, -10.2, 0)), False)
sketch16.addGeometry(Part.LineSegment(App.Vector(-47.7, -10.2, 0), App.Vector(-36, -10.2, 0)), False)
sketch16.addGeometry(Part.LineSegment(App.Vector(-36, -10.2, 0), App.Vector(-34.9, -5.6, 0)), False)
sketch16.addGeometry(Part.ArcOfCircle(Part.Circle(App.Vector(-31.8, -6.3, 0), App.Vector(0, 0, 1), 3.2), math.radians(13), math.radians(167)), False)
sketch16.addGeometry(Part.Circle(App.Vector(-41.3, -6.3, 0), App.Vector(0, 0, 1), 1.5), False)
sketch16.addGeometry(Part.Circle(App.Vector(-41.3, 6.3, 0), App.Vector(0, 0, 1), 1.5), False)
sketch16.addGeometry(Part.Circle(App.Vector(-22.3, 6.3, 0), App.Vector(0, 0, 1), 1.5), False)
sketch16.addConstraint(Sketcher.Constraint("Coincident", 0, 2, 1, 1))
sketch16.addConstraint(Sketcher.Constraint("Coincident", 1, 2, 2, 1))
sketch16.addConstraint(Sketcher.Constraint("Coincident", 2, 2, 3, 1))
sketch16.addConstraint(Sketcher.Constraint("Coincident", 3, 2, 4, 1))
sketch16.addConstraint(Sketcher.Constraint("Coincident", 4, 2, 5, 1))
sketch16.addConstraint(Sketcher.Constraint("Coincident", 5, 2, 6, 1))
sketch16.addConstraint(Sketcher.Constraint("Tangent", 6, 2, 7, 2))
sketch16.addConstraint(Sketcher.Constraint("Tangent", 7, 1, 0, 1))
sketch16.addConstraint(Sketcher.Constraint("Horizontal", 1))
sketch16.addConstraint(Sketcher.Constraint("Vertical", 2))
sketch16.addConstraint(Sketcher.Constraint("Horizontal", 3))
sketch16.addConstraint(Sketcher.Constraint("Vertical", 4))
sketch16.addConstraint(Sketcher.Constraint("Horizontal", 5))
sketch16.addConstraint(Sketcher.Constraint("Equal", 8, 9))
sketch16.addConstraint(Sketcher.Constraint("Equal", 9, 10))
sketch16.addConstraint(Sketcher.Constraint("Symmetric", 8, 3, 9, 3, -1))
sketch16.addConstraint(Sketcher.Constraint("Horizontal", 7, 3, 8, 3))
sketch16.addConstraint(Sketcher.Constraint("Horizontal", 9, 3, 10, 3))
sketch16.addConstraint(Sketcher.Constraint("Horizontal", 1, 2, 4, 2))
sketch16.addConstraint(Sketcher.Constraint("Horizontal", 6, 2, 7, 1))
sketch16.addConstraint(Sketcher.Constraint("Equal", 1, 5))
sketch16.addConstraint(Sketcher.Constraint("DistanceY", 2, 1, 2, 2, Q("0.8 in")))
sketch16.addConstraint(Sketcher.Constraint("DistanceX", 3, 2, 3, 1, Q("1.25 in")))
sketch16.addConstraint(Sketcher.Constraint("DistanceY", 0, 2, -1, 1, Q("0.4 in")))
sketch16.addConstraint(Sketcher.Constraint("Diameter", 8, Q("0.115 in")))
sketch16.addConstraint(Sketcher.Constraint("Radius", 7, Q("0.125 in")))
sketch16.addConstraint(Sketcher.Constraint("DistanceX", 10, 3, 1, 2, Q("0.251 in")))
sketch16.addConstraint(Sketcher.Constraint("DistanceX", 3, 2, 9, 3, Q("0.251 in")))
sketch16.addConstraint(Sketcher.Constraint("Angle", 0, Q("-77.1007 deg")))
sketch16.addConstraint(Sketcher.Constraint("DistanceY", 8, 3, 9, 3, Q("0.5 in")))
sketch16.addConstraint(Sketcher.Constraint("DistanceX", 7, 3, -1, 1, Q("1.2535 in")))
pad9 = body.newObject("PartDesign::Pad", "Pad008")
pad9.Profile = sketch16
pad9.Length = Q("0.195 in")

# Sketch on XZ plane
sketch17 = body.newObject("Sketcher::SketchObject", "Sketch016")
sketch17.AttachmentSupport = (doc.getObject("XZ_Plane"), [""])
sketch17.MapMode = "FlatFace"
sketch17.AttachmentOffset = App.Placement(App.Vector(0, 0, 1 * 25.4), App.Rotation())
sketch17.addGeometry(Part.LineSegment(App.Vector(-9, 13, 0), App.Vector(-9, -7, 0)), False)
sketch17.addGeometry(Part.LineSegment(App.Vector(-9, -7, 0), App.Vector(1, -7, 0)), False)
sketch17.addGeometry(Part.LineSegment(App.Vector(1, -7, 0), App.Vector(1, 13, 0)), False)
sketch17.addGeometry(Part.LineSegment(App.Vector(1, 13, 0), App.Vector(-9, 13, 0)), False)
sketch17.addConstraint(Sketcher.Constraint("Coincident", 0, 2, 1, 1))
sketch17.addConstraint(Sketcher.Constraint("Coincident", 1, 2, 2, 1))
sketch17.addConstraint(Sketcher.Constraint("Coincident", 2, 2, 3, 1))
sketch17.addConstraint(Sketcher.Constraint("Coincident", 3, 2, 0, 1))
sketch17.addConstraint(Sketcher.Constraint("Vertical", 0))
sketch17.addConstraint(Sketcher.Constraint("Horizontal", 1))
sketch17.addConstraint(Sketcher.Constraint("Vertical", 2))
sketch17.addConstraint(Sketcher.Constraint("Horizontal", 3))
sketch17.addConstraint(Sketcher.Constraint("DistanceX", 0, 2, -1, 1, Q("0.35 in")))
sketch17.addConstraint(Sketcher.Constraint("DistanceX", 1, 1, 1, 2, Q("10.194 mm")))
sketch17.addConstraint(Sketcher.Constraint("DistanceY", 0, 2, 0, 1, Q("19.5968 mm")))
sketch17.addConstraint(Sketcher.Constraint("DistanceY", 0, 2, -1, 1, Q("0.2787 in")))
pocket8 = body.newObject("PartDesign::Pocket", "Pocket007")
pocket8.Profile = sketch17
pocket8.Length = Q("0.25 in")

doc.recompute()
